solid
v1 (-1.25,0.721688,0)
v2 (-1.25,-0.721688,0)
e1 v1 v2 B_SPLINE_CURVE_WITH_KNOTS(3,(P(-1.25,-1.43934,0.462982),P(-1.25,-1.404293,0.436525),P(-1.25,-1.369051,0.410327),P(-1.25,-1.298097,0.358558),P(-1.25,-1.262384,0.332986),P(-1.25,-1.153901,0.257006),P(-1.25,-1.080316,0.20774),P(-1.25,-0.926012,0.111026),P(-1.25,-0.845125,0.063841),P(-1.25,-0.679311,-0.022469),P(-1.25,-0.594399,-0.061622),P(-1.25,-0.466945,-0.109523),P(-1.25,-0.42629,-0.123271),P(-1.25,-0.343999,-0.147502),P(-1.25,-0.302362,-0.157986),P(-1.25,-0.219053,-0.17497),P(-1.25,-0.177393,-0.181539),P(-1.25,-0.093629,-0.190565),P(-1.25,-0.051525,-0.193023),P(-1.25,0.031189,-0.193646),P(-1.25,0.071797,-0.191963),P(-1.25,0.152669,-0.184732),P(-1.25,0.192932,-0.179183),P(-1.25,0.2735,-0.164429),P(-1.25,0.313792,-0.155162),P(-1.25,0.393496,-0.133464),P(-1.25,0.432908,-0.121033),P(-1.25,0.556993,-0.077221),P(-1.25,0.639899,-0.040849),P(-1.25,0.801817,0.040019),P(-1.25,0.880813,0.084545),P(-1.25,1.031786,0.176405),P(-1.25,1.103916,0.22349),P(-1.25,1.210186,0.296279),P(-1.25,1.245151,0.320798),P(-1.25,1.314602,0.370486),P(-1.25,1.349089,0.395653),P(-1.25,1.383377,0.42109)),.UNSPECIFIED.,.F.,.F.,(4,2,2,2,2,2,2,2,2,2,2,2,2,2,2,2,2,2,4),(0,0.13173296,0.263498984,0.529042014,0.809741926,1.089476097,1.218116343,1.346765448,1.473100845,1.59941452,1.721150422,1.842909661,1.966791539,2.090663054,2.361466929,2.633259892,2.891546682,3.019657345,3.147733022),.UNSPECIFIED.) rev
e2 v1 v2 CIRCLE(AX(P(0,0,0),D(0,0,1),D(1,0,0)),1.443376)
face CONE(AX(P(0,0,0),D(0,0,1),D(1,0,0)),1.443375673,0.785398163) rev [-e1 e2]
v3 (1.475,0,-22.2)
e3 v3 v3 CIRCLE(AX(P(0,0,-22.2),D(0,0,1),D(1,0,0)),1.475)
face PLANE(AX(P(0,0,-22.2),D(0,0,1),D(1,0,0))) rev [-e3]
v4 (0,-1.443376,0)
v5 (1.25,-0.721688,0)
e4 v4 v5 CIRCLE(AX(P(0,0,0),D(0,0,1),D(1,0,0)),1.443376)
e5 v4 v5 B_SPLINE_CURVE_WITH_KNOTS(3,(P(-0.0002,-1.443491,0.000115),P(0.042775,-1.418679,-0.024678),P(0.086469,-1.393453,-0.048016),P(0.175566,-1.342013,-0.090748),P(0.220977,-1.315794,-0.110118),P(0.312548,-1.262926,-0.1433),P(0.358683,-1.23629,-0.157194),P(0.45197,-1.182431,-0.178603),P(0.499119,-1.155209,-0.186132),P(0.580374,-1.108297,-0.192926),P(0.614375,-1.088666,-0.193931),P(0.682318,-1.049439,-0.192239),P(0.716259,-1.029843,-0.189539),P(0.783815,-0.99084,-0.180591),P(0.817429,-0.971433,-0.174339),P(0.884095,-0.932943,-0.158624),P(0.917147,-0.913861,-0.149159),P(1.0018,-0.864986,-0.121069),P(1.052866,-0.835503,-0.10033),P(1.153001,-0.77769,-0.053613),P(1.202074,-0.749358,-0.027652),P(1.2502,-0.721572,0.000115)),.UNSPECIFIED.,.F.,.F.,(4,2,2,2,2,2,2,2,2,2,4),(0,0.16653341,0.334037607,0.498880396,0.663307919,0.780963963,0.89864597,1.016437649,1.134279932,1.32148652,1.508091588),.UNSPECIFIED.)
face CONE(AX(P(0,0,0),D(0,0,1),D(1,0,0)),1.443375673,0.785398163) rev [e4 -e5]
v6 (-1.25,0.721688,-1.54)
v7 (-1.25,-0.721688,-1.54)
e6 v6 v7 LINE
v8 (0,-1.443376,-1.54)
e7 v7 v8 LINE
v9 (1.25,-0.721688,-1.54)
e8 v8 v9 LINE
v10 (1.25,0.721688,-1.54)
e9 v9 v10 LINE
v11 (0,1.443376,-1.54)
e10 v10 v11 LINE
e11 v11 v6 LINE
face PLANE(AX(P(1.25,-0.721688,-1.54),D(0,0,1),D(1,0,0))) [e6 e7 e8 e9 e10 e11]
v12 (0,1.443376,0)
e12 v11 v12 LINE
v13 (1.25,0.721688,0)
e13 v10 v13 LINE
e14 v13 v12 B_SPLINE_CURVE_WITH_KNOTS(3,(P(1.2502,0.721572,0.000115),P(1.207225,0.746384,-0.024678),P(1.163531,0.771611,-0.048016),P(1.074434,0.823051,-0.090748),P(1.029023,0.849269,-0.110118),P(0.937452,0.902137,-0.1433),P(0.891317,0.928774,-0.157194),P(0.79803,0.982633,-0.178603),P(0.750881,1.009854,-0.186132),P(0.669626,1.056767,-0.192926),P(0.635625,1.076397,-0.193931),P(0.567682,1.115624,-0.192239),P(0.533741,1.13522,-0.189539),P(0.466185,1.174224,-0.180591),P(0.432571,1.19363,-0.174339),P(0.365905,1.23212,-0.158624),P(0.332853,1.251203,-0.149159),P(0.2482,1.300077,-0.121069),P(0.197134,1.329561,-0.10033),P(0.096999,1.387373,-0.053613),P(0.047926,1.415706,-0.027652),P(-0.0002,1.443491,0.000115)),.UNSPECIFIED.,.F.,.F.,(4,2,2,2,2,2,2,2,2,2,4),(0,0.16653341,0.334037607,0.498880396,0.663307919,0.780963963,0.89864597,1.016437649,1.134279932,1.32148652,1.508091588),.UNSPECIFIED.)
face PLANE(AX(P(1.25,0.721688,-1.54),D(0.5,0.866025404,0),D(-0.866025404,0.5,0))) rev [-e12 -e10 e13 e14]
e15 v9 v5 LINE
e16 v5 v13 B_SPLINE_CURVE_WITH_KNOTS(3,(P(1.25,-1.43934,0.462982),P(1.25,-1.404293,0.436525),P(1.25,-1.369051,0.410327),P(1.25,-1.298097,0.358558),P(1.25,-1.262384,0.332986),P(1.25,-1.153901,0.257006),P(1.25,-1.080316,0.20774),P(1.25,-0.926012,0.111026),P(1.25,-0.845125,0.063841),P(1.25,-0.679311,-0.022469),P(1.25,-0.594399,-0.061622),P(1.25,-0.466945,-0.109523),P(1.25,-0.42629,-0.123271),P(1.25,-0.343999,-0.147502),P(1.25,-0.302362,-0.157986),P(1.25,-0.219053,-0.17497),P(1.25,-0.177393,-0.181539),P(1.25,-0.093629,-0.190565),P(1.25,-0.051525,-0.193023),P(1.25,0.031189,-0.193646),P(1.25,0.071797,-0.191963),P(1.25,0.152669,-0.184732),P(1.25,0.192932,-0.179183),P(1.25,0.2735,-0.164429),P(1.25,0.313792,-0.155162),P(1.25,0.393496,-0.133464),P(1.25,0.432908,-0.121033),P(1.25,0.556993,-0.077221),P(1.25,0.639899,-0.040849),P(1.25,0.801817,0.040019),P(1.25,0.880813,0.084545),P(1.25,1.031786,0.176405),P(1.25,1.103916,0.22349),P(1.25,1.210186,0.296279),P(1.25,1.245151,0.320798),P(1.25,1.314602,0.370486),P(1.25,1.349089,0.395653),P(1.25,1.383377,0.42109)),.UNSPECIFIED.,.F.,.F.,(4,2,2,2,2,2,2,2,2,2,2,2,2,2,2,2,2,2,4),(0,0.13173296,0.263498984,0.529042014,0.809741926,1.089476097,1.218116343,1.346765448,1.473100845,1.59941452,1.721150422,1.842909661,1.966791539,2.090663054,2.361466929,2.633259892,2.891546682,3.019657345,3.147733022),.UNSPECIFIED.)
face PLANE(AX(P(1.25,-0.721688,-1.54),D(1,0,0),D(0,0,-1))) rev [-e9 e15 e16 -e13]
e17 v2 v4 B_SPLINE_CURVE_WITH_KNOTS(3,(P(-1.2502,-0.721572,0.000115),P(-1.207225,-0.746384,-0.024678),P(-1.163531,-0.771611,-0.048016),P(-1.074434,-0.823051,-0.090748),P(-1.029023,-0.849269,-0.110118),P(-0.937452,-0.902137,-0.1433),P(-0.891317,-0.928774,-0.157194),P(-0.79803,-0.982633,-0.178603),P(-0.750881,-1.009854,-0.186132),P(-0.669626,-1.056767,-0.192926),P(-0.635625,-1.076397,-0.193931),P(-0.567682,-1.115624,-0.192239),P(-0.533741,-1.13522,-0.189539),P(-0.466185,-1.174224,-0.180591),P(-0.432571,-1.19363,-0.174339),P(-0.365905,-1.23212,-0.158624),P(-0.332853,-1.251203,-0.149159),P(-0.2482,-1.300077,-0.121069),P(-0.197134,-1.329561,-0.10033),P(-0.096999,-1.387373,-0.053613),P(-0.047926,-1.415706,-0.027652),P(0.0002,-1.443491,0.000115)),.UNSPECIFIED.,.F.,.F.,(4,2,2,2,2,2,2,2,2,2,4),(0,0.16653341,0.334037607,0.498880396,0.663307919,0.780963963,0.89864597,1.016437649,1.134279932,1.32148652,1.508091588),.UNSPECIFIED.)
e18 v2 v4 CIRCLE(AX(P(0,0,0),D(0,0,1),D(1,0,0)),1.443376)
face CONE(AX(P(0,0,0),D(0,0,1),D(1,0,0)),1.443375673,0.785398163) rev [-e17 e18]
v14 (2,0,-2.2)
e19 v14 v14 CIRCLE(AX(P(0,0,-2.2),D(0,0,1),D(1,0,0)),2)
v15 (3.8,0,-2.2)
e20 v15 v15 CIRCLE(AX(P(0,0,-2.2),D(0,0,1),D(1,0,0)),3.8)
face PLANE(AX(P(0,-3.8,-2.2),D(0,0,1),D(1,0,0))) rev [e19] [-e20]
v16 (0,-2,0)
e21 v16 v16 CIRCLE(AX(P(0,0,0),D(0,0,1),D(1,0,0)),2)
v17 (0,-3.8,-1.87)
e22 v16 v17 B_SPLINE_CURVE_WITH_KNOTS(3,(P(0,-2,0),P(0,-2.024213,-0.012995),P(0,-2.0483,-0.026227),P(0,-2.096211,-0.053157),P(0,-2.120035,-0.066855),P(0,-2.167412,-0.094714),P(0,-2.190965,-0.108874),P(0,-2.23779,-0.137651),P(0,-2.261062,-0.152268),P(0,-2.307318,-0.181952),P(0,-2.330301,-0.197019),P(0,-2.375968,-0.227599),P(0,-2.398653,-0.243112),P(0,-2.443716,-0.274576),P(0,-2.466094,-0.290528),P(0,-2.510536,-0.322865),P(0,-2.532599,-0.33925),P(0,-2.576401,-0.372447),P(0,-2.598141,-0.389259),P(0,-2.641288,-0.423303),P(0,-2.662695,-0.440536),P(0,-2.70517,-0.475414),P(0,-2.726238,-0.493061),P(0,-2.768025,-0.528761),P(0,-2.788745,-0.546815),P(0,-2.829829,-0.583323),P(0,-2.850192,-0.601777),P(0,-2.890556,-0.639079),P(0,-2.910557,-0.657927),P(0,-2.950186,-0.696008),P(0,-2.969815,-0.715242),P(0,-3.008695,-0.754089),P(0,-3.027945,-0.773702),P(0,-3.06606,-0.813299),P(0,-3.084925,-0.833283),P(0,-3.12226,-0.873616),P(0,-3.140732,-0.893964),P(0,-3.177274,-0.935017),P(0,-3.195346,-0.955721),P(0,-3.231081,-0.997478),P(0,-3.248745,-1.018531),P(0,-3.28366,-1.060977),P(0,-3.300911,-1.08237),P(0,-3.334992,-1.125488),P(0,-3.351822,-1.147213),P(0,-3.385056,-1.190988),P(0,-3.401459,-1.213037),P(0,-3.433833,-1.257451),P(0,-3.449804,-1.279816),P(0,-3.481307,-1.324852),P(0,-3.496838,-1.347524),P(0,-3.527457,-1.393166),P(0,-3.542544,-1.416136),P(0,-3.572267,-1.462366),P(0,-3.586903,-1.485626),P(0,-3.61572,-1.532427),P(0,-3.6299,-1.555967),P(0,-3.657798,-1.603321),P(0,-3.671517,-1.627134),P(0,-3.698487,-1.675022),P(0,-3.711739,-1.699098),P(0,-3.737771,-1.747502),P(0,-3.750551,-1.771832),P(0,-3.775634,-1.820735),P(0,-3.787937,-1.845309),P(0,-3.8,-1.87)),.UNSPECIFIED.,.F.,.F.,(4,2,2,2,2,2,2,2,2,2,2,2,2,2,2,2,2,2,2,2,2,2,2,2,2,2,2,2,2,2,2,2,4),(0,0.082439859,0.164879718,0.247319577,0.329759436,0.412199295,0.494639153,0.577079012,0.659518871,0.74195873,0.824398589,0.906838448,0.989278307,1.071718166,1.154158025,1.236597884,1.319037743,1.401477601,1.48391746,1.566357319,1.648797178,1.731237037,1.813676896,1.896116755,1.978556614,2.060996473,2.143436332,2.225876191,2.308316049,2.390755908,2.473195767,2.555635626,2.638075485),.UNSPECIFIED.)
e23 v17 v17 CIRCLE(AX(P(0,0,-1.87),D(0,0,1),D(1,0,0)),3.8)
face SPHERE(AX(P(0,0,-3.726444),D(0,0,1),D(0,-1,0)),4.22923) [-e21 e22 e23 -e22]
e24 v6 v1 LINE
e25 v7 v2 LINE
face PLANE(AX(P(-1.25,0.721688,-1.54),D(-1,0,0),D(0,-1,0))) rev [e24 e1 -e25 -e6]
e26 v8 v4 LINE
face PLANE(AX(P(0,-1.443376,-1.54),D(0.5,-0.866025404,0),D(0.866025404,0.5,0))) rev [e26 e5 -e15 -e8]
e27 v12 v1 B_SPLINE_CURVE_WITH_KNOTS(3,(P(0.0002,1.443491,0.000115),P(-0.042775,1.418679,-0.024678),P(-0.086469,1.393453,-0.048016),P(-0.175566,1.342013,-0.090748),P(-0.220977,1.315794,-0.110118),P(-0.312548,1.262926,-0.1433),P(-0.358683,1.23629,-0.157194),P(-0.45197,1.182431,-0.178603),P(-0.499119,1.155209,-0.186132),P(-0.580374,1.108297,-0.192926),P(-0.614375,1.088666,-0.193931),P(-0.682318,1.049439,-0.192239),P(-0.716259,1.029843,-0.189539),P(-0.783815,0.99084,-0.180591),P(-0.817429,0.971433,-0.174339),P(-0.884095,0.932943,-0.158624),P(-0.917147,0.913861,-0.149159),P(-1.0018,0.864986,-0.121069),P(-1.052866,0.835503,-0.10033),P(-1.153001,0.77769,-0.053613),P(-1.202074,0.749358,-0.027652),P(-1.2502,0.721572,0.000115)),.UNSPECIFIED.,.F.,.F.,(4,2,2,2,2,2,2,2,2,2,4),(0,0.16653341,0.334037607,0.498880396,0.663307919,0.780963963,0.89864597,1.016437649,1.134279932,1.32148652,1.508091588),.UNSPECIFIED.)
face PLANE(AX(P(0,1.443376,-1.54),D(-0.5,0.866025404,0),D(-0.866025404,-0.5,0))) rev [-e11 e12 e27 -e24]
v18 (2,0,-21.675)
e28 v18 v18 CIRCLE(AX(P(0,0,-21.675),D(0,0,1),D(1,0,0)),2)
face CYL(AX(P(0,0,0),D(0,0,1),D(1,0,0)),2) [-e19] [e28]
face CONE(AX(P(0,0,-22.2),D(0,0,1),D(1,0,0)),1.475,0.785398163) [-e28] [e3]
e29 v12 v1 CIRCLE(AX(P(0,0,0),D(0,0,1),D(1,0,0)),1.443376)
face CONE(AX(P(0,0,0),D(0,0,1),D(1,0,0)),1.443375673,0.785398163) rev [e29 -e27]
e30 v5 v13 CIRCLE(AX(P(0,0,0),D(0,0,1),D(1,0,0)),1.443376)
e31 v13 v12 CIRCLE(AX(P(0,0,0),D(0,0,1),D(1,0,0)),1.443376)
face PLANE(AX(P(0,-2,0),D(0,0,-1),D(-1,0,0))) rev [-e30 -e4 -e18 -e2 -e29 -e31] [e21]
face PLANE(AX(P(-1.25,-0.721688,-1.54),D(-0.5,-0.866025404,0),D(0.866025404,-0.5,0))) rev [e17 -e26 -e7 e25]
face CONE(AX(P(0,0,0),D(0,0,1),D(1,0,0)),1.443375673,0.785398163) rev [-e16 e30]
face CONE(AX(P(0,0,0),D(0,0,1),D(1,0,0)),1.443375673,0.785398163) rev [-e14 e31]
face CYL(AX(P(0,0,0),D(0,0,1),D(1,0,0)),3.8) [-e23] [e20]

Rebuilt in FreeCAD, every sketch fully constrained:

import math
import FreeCAD as App
import Part
import Sketcher
Q = App.Units.Quantity


def add_polygon(sketch, points):
    """Adds a closed chain of lines whose ends are joined by coincident constraints."""
    first, n = sketch.GeometryCount, len(points)
    for a, b in zip(points, points[1:] + points[:1]):
        sketch.addGeometry(Part.LineSegment(App.Vector(*a, 0), App.Vector(*b, 0)), False)
    for i in range(n):
        sketch.addConstraint(Sketcher.Constraint("Coincident", first + i, 2, first + (i + 1) % n, 1))

doc = App.newDocument("Part")
params = doc.addObject("Spreadsheet::Sheet", "Params")
for row, (alias, value) in enumerate([
    ("sketch1_width", "2 mm"),
    ("sketch1_height", "20 mm"),
    ("revolution_angle", "360 deg"),
    ("sketch2_width", "2 mm"),
    ("sketch2_width2", "3.8 mm"),
    ("sketch2_height", "2.2 mm"),
    ("sketch2_height2", "0.33 mm"),
    ("revolution2_angle", "360 deg"),
    ("pocket1_length", "1.54 mm"),
    ("groove_angle", "360 deg"),
], start=1):
    params.set(f"A{row}", alias)
    params.set(f"B{row}", "=" + value)
    params.setAlias(f"B{row}", alias)

body = doc.addObject("PartDesign::Body", "Body")

sketch1 = body.newObject("Sketcher::SketchObject", "Sketch")
sketch1.AttachmentSupport = (doc.getObject("YZ_Plane"), [""])
sketch1.MapMode = "FlatFace"
add_polygon(sketch1, [(1.5, -22.2), (2, -21.7), (2, -2.2), (0, -2.2), (0, -22.2)])
sketch1.addConstraint([
    Sketcher.Constraint("Vertical", 1),
    Sketcher.Constraint("Horizontal", 2),
    Sketcher.Constraint("Vertical", 3),
    Sketcher.Constraint("Horizontal", 4),
    Sketcher.Constraint("PointOnObject", 2, 2, -2),
    Sketcher.Constraint("DistanceX", 2, 2, 2, 1, Q("2 mm")),
    Sketcher.Constraint("DistanceY", 3, 2, 3, 1, Q("20 mm")),
    Sketcher.Constraint("Angle", 0, Q("45 deg")),
    Sketcher.Constraint("DistanceY", 1, 2, -1, 1, Q("2.2 mm")),
    Sketcher.Constraint("DistanceX", 4, 1, 4, 2, Q("1.475 mm")),
])
sketch1.setExpression("Constraints[10]", "Params.sketch1_width")
sketch1.setExpression("Constraints[11]", "Params.sketch1_height")
revolution = body.newObject("PartDesign::Revolution", "Revolution")
revolution.Profile = sketch1
revolution.ReferenceAxis = (sketch1, ["V_Axis"])
revolution.setExpression("Angle", "Params.revolution_angle")

sketch2 = body.newObject("Sketcher::SketchObject", "Sketch001")
sketch2.AttachmentSupport = (doc.getObject("YZ_Plane"), [""])
sketch2.MapMode = "FlatFace"
sketch2.addGeometry([
    Part.LineSegment(App.Vector(3.8, -2.2, 0), App.Vector(3.8, -1.87, 0)),
    Part.ArcOfCircle(Part.Circle(App.Vector(0, -3.73, 0), App.Vector(0, 0, 1), 4.23), math.radians(26), math.radians(62)),
    Part.LineSegment(App.Vector(2, 0, 0), App.Vector(0, 0, 0)),
    Part.LineSegment(App.Vector(0, 0, 0), App.Vector(0, -2.2, 0)),
    Part.LineSegment(App.Vector(0, -2.2, 0), App.Vector(3.8, -2.2, 0)),
], False)
sketch2.addConstraint([
    Sketcher.Constraint("Coincident", 0, 2, 1, 1),
    Sketcher.Constraint("Coincident", 1, 2, 2, 1),
    Sketcher.Constraint("Coincident", 2, 2, 3, 1),
    Sketcher.Constraint("Coincident", 3, 2, 4, 1),
    Sketcher.Constraint("Coincident", 4, 2, 0, 1),
    Sketcher.Constraint("Vertical", 0),
    Sketcher.Constraint("Horizontal", 2),
    Sketcher.Constraint("Vertical", 3),
    Sketcher.Constraint("Horizontal", 4),
    Sketcher.Constraint("Coincident", 2, 2, -1, 1),
    Sketcher.Constraint("PointOnObject", 1, 3, -2),
    Sketcher.Constraint("DistanceX", 2, 2, 2, 1, Q("2 mm")),
    Sketcher.Constraint("DistanceX", 4, 1, 4, 2, Q("3.8 mm")),
    Sketcher.Constraint("DistanceY", 3, 2, 3, 1, Q("2.2 mm")),
    Sketcher.Constraint("DistanceY", 0, 1, 0, 2, Q("0.33 mm")),
])
sketch2.setExpression("Constraints[11]", "Params.sketch2_width")
sketch2.setExpression("Constraints[12]", "Params.sketch2_width2")
sketch2.setExpression("Constraints[13]", "Params.sketch2_height")
sketch2.setExpression("Constraints[14]", "Params.sketch2_height2")
revolution2 = body.newObject("PartDesign::Revolution", "Revolution001")
revolution2.Profile = sketch2
revolution2.ReferenceAxis = (sketch2, ["V_Axis"])
revolution2.setExpression("Angle", "Params.revolution2_angle")

sketch3 = body.newObject("Sketcher::SketchObject", "Sketch002")
sketch3.AttachmentSupport = (doc.getObject("XY_Plane"), [""])
sketch3.MapMode = "FlatFace"
add_polygon(sketch3, [(1.2, -0.7), (1.2, 0.7), (0, 1.4), (-1.2, 0.7), (-1.2, -0.7), (0, -1.4)])
sketch3.addConstraint([
    Sketcher.Constraint("Vertical", 0),
    Sketcher.Constraint("Vertical", 3),
    Sketcher.Constraint("Symmetric", 0, 2, 3, 2, -1, 1),
    Sketcher.Constraint("Symmetric", 1, 2, 4, 2, -1, 1),
    Sketcher.Constraint("PointOnObject", 1, 2, -2),
    Sketcher.Constraint("Parallel", 2, 5),
    Sketcher.Constraint("Horizontal", 0, 2, 2, 2),
    Sketcher.Constraint("Angle", 1, Q("150 deg")),
    Sketcher.Constraint("DistanceX", 2, 2, 0, 2, Q("2.5 mm")),
    Sketcher.Constraint("DistanceY", 0, 1, 0, 2, Q("1.443376 mm")),
])
pocket1 = body.newObject("PartDesign::Pocket", "Pocket")
pocket1.Profile = sketch3
pocket1.setExpression("Length", "Params.pocket1_length")

sketch4 = body.newObject("Sketcher::SketchObject", "Sketch003")
sketch4.AttachmentSupport = (doc.getObject("YZ_Plane"), [""])
sketch4.MapMode = "FlatFace"
add_polygon(sketch4, [(0, 0), (-1.4, 0), (0, -1.4)])
sketch4.addConstraint([
    Sketcher.Constraint("Horizontal", 0),
    Sketcher.Constraint("Vertical", 2),
    Sketcher.Constraint("Coincident", 2, 2, -1, 1),
    Sketcher.Constraint("Equal", 0, 2),
    Sketcher.Constraint("Distance", 1, Q("2.041241 mm")),
])
groove = body.newObject("PartDesign::Groove", "Groove")
groove.Profile = sketch4
groove.ReferenceAxis = (sketch4, ["V_Axis"])
groove.setExpression("Angle", "Params.groove_angle")

doc.recompute()
